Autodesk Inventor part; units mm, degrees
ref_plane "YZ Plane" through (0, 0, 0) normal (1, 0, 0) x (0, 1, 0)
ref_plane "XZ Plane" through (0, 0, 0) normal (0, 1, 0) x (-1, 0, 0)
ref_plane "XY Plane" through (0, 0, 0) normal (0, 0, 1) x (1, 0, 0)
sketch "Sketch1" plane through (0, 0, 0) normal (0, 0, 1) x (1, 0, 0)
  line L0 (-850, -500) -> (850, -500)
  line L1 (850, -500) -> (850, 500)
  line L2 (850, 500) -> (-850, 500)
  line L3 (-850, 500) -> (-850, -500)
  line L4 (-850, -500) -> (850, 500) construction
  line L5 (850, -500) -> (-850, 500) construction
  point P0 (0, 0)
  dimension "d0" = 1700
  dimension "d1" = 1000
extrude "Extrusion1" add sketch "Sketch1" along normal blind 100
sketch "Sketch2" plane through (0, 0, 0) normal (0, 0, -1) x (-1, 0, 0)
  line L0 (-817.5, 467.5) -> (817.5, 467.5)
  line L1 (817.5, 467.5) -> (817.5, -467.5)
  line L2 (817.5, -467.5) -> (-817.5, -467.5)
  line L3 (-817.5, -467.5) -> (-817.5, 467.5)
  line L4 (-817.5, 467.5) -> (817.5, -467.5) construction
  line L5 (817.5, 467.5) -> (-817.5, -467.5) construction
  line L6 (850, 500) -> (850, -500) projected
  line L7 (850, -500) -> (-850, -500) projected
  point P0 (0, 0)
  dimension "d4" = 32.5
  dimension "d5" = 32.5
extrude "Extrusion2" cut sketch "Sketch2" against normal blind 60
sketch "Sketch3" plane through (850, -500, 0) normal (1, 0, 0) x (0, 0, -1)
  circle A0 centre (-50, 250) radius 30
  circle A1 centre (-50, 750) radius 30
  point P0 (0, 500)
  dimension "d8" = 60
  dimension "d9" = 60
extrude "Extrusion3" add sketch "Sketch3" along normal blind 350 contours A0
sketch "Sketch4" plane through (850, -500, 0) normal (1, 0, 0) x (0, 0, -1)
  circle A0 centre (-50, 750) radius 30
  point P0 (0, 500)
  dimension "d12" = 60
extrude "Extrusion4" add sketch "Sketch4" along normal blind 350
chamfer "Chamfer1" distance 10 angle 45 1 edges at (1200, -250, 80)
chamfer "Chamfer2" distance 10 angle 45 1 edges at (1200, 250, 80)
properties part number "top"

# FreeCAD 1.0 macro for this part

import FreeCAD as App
import Part
import Sketcher
Q = App.Units.Quantity


def edges_at(feature, points):
    """Names of the edges that pass closest to the given points."""
    edges = feature.Shape.Edges
    near = lambda p: min(range(len(edges)), key=lambda i: edges[i].distToShape(Part.Vertex(*p))[0])
    return sorted({f"Edge{near(p) + 1}" for p in points})

doc = App.newDocument("Part")
body = doc.addObject("PartDesign::Body", "Body")

# Sketch on XY plane
sketch1 = body.newObject("Sketcher::SketchObject", "Sketch")
sketch1.AttachmentSupport = (doc.getObject("XY_Plane"), [""])
sketch1.MapMode = "FlatFace"
sketch1.addGeometry([
    Part.LineSegment(App.Vector(-850, 500, 0), App.Vector(-850, -500, 0)),
    Part.LineSegment(App.Vector(-850, -500, 0), App.Vector(850, -500, 0)),
    Part.LineSegment(App.Vector(850, -500, 0), App.Vector(850, 500, 0)),
    Part.LineSegment(App.Vector(850, 500, 0), App.Vector(-850, 500, 0)),
], False)
sketch1.addConstraint([
    Sketcher.Constraint("Coincident", 0, 2, 1, 1),
    Sketcher.Constraint("Coincident", 1, 2, 2, 1),
    Sketcher.Constraint("Coincident", 2, 2, 3, 1),
    Sketcher.Constraint("Coincident", 3, 2, 0, 1),
    Sketcher.Constraint("Vertical", 0),
    Sketcher.Constraint("Horizontal", 1),
    Sketcher.Constraint("Vertical", 2),
    Sketcher.Constraint("Horizontal", 3),
    Sketcher.Constraint("Symmetric", 0, 2, 2, 2, -1, 1),
    Sketcher.Constraint("DistanceX", 1, 1, 1, 2, Q("1700 mm")),
    Sketcher.Constraint("DistanceY", 0, 2, 0, 1, Q("1000 mm")),
])
pad1 = body.newObject("PartDesign::Pad", "Pad")
pad1.Profile = sketch1
pad1.Length = 100

# Sketch on XY plane
sketch2 = body.newObject("Sketcher::SketchObject", "Sketch001")
sketch2.AttachmentSupport = (doc.getObject("XY_Plane"), [""])
sketch2.MapMode = "FlatFace"
sketch2.addGeometry([
    Part.LineSegment(App.Vector(-818, 468, 0), App.Vector(818, 468, 0)),
    Part.LineSegment(App.Vector(818, 468, 0), App.Vector(818, -468, 0)),
    Part.LineSegment(App.Vector(818, -468, 0), App.Vector(-818, -468, 0)),
    Part.LineSegment(App.Vector(-818, -468, 0), App.Vector(-818, 468, 0)),
], False)
sketch2.addConstraint([
    Sketcher.Constraint("Coincident", 0, 2, 1, 1),
    Sketcher.Constraint("Coincident", 1, 2, 2, 1),
    Sketcher.Constraint("Coincident", 2, 2, 3, 1),
    Sketcher.Constraint("Coincident", 3, 2, 0, 1),
    Sketcher.Constraint("Horizontal", 0),
    Sketcher.Constraint("Vertical", 1),
    Sketcher.Constraint("Horizontal", 2),
    Sketcher.Constraint("Vertical", 3),
    Sketcher.Constraint("Symmetric", 0, 2, 2, 2, -1, 1),
    Sketcher.Constraint("DistanceX", 0, 1, 0, 2, Q("1635 mm")),
    Sketcher.Constraint("DistanceY", 1, 2, 1, 1, Q("935 mm")),
])
pocket1 = body.newObject("PartDesign::Pocket", "Pocket")
pocket1.Profile = sketch2
pocket1.Length = 60
pocket1.Reversed = True

# Sketch on YZ plane
sketch3 = body.newObject("Sketcher::SketchObject", "Sketch002")
sketch3.AttachmentSupport = (doc.getObject("YZ_Plane"), [""])
sketch3.MapMode = "FlatFace"
sketch3.AttachmentOffset = App.Placement(App.Vector(0, 0, 850), App.Rotation())
sketch3.addGeometry(Part.Circle(App.Vector(-250, 50, 0), App.Vector(0, 0, 1), 30), False)
sketch3.addConstraint([
    Sketcher.Constraint("Diameter", 0, Q("60 mm")),
    Sketcher.Constraint("DistanceX", 0, 3, -1, 1, Q("250 mm")),
    Sketcher.Constraint("DistanceY", -1, 1, 0, 3, Q("50 mm")),
])
pad2 = body.newObject("PartDesign::Pad", "Pad001")
pad2.Profile = sketch3
pad2.Length = 350

# Sketch on YZ plane
sketch4 = body.newObject("Sketcher::SketchObject", "Sketch003")
sketch4.AttachmentSupport = (doc.getObject("YZ_Plane"), [""])
sketch4.MapMode = "FlatFace"
sketch4.AttachmentOffset = App.Placement(App.Vector(0, 0, 850), App.Rotation())
sketch4.addGeometry(Part.Circle(App.Vector(250, 50, 0), App.Vector(0, 0, 1), 30), False)
sketch4.addConstraint([
    Sketcher.Constraint("Diameter", 0, Q("60 mm")),
    Sketcher.Constraint("DistanceX", -1, 1, 0, 3, Q("250 mm")),
    Sketcher.Constraint("DistanceY", -1, 1, 0, 3, Q("50 mm")),
])
pad3 = body.newObject("PartDesign::Pad", "Pad002")
pad3.Profile = sketch4
pad3.Length = 350
doc.recompute()

chamfer = body.newObject("PartDesign::Chamfer", "Chamfer")
chamfer.Base = (pad3, edges_at(pad3, [(1200, -250, 80)]))
chamfer.Size = 10
doc.recompute()

chamfer2 = body.newObject("PartDesign::Chamfer", "Chamfer001")
chamfer2.Base = (chamfer, edges_at(chamfer, [(1200, 250, 80)]))
chamfer2.Size = 10

doc.recompute()
